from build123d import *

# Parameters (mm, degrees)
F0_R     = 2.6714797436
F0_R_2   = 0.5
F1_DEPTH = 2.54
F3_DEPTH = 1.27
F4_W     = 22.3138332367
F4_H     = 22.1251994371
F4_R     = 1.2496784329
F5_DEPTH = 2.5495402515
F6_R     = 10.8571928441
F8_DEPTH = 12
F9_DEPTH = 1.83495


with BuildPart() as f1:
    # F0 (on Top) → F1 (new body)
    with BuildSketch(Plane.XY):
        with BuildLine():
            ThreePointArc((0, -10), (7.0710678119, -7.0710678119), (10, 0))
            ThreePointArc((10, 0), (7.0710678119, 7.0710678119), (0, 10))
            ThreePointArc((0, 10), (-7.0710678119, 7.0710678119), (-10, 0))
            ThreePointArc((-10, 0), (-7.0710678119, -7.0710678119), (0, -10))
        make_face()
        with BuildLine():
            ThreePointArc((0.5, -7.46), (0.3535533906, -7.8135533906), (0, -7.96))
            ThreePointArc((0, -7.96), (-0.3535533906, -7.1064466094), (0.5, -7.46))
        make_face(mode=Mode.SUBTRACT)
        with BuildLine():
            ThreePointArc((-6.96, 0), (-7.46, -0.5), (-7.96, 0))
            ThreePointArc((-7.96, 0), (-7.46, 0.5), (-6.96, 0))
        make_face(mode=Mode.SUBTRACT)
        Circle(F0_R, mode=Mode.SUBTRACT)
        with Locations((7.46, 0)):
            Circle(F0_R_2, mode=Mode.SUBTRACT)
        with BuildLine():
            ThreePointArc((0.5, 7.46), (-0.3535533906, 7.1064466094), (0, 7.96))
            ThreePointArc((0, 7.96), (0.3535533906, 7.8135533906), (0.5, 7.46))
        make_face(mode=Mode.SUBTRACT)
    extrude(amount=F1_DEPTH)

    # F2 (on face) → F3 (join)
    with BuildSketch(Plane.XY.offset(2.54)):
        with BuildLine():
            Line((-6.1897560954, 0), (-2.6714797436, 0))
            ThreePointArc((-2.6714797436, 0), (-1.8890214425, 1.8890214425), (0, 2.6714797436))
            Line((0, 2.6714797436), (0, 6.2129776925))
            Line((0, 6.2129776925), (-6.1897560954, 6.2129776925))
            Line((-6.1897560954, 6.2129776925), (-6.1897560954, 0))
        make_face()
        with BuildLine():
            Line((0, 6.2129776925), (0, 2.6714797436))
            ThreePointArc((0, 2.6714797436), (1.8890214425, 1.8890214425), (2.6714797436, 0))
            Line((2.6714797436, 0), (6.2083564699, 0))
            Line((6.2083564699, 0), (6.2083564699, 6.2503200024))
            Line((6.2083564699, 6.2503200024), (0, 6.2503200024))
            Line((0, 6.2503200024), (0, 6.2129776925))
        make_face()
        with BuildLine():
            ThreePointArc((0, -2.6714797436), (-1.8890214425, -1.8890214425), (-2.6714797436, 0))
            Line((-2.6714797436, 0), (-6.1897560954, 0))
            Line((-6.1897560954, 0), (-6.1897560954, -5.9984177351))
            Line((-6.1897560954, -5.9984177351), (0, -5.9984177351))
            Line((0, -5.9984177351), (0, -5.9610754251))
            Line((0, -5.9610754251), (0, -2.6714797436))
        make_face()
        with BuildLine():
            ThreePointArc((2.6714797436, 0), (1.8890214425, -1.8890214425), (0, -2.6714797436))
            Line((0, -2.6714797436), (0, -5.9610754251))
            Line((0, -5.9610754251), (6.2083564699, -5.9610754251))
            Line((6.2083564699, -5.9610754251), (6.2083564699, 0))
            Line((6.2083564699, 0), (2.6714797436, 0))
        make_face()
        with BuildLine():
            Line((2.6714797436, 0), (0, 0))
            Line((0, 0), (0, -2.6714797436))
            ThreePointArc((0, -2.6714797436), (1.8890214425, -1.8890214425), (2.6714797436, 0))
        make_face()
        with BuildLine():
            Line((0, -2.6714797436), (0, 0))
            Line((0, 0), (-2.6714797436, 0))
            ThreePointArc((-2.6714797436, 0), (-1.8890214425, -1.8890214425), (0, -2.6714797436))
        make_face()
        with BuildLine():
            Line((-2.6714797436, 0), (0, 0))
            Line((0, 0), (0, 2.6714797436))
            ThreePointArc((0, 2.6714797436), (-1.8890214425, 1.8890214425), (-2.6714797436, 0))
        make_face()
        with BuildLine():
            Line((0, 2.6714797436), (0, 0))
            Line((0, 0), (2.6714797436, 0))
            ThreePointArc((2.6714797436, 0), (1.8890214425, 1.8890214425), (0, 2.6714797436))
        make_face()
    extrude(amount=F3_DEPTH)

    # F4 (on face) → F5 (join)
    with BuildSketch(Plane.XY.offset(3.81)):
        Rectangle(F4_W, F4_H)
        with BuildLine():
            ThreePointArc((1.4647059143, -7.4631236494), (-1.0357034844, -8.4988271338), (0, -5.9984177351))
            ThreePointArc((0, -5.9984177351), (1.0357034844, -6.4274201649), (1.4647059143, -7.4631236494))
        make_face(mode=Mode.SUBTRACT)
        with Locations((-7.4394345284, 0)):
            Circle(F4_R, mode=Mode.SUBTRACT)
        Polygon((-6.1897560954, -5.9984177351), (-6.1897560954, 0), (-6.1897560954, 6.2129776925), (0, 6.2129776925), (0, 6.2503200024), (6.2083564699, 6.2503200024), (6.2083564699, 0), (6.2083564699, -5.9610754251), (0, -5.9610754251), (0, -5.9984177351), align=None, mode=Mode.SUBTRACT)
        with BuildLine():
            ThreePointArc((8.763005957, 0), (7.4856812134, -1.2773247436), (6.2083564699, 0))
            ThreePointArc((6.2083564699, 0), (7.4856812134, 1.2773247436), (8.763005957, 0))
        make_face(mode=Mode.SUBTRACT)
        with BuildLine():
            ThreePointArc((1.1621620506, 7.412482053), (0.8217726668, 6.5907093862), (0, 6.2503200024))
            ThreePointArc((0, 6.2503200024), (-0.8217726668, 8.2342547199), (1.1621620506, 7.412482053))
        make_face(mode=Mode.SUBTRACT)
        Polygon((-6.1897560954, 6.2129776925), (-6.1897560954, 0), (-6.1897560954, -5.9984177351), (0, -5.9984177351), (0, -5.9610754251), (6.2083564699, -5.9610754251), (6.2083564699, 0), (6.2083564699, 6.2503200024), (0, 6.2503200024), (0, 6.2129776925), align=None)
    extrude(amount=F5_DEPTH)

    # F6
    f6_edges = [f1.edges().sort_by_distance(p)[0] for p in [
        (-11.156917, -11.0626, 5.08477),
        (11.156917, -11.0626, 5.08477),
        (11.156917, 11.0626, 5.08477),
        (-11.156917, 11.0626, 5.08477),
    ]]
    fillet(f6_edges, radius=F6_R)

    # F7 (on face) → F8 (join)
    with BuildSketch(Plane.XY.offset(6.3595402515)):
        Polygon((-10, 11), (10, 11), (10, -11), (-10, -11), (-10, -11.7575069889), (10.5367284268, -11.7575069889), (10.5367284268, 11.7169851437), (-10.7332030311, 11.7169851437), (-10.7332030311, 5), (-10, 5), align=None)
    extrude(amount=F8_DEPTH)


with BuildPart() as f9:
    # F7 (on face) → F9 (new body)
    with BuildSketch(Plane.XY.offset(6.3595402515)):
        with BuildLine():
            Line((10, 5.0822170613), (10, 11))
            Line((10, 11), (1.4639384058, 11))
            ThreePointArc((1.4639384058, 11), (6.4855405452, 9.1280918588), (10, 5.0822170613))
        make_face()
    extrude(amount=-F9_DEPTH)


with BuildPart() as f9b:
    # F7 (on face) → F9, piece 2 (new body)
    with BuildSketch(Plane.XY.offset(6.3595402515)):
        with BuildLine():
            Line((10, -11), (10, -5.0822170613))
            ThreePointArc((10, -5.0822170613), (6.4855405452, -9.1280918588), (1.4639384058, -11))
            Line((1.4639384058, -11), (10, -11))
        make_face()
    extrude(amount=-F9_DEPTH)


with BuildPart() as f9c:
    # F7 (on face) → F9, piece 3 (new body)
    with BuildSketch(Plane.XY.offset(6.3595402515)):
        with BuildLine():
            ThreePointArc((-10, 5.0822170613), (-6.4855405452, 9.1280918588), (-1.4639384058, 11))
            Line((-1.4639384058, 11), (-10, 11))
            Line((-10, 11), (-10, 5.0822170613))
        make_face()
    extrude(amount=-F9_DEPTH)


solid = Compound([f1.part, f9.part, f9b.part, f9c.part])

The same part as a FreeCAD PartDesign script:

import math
import FreeCAD as App
import Part
import Sketcher
from FreeCAD import Vector
Q = App.Units.Quantity


def edges_at(feature, points):
    """Names of the edges that pass closest to the given points."""
    edges = feature.Shape.Edges
    near = lambda p: min(range(len(edges)), key=lambda i: edges[i].distToShape(Part.Vertex(*p))[0])
    return sorted({f"Edge{near(p) + 1}" for p in points})


def add_polygon(sketch, points):
    """Adds a closed chain of lines whose ends are joined by coincident constraints."""
    first, n = sketch.GeometryCount, len(points)
    for a, b in zip(points, points[1:] + points[:1]):
        sketch.addGeometry(Part.LineSegment(App.Vector(*a, 0), App.Vector(*b, 0)), False)
    for i in range(n):
        sketch.addConstraint(Sketcher.Constraint("Coincident", first + i, 2, first + (i + 1) % n, 1))

doc = App.newDocument("Part")
body = doc.addObject("PartDesign::Body", "Body")

# Sketch on XY plane
sketch1 = body.newObject("Sketcher::SketchObject", "Sketch")
sketch1.AttachmentSupport = (doc.getObject("XY_Plane"), [""])
sketch1.MapMode = "FlatFace"
sketch1.addGeometry(Part.ArcOfCircle(Part.Circle(Vector(0, 0, 0), Vector(0, 0, 1), 10), math.radians(-90), math.radians(0)), False)
sketch1.addGeometry(Part.ArcOfCircle(Part.Circle(Vector(0, 0, 0), Vector(0, 0, 1), 10), math.radians(0), math.radians(90)), False)
sketch1.addGeometry(Part.ArcOfCircle(Part.Circle(Vector(0, 0, 0), Vector(0, 0, 1), 10), math.radians(90), math.radians(180)), False)
sketch1.addGeometry(Part.ArcOfCircle(Part.Circle(Vector(0, 0, 0), Vector(0, 0, 1), 10), math.radians(180), math.radians(270)), False)
sketch1.addGeometry(Part.ArcOfCircle(Part.Circle(Vector(0, -7.5, 0), Vector(0, 0, 1), 0.5), math.radians(0), math.radians(270)), False)
sketch1.addGeometry(Part.ArcOfCircle(Part.Circle(Vector(0, -7.5, 0), Vector(0, 0, 1), 0.5), math.radians(-90), math.radians(0)), False)
sketch1.addGeometry(Part.Circle(Vector(-7.5, 0, 0), Vector(0, 0, 1), 0.5), False)
sketch1.addGeometry(Part.Circle(Vector(0, 0, 0), Vector(0, 0, 1), 2.7), False)
sketch1.addGeometry(Part.Circle(Vector(7.5, 0, 0), Vector(0, 0, 1), 0.5), False)
sketch1.addGeometry(Part.ArcOfCircle(Part.Circle(Vector(0, 7.5, 0), Vector(0, 0, 1), 0.5), math.radians(0), math.radians(90)), False)
sketch1.addGeometry(Part.ArcOfCircle(Part.Circle(Vector(0, 7.5, 0), Vector(0, 0, 1), 0.5), math.radians(90), math.radians(360)), False)
sketch1.addConstraint(Sketcher.Constraint("Tangent", 0, 2, 1, 1))
sketch1.addConstraint(Sketcher.Constraint("Tangent", 1, 2, 2, 1))
sketch1.addConstraint(Sketcher.Constraint("Tangent", 2, 2, 3, 1))
sketch1.addConstraint(Sketcher.Constraint("Tangent", 3, 2, 0, 1))
sketch1.addConstraint(Sketcher.Constraint("Tangent", 4, 1, 5, 2))
sketch1.addConstraint(Sketcher.Constraint("Coincident", 5, 1, 4, 2))
sketch1.addConstraint(Sketcher.Constraint("Tangent", 9, 1, 10, 2))
sketch1.addConstraint(Sketcher.Constraint("Coincident", 10, 1, 9, 2))
sketch1.addConstraint(Sketcher.Constraint("Coincident", 0, 3, -1, 1))
sketch1.addConstraint(Sketcher.Constraint("Coincident", 7, 3, -1, 1))
sketch1.addConstraint(Sketcher.Constraint("Equal", 0, 1))
sketch1.addConstraint(Sketcher.Constraint("Equal", 5, 6))
sketch1.addConstraint(Sketcher.Constraint("Equal", 6, 8))
sketch1.addConstraint(Sketcher.Constraint("Equal", 8, 9))
sketch1.addConstraint(Sketcher.Constraint("Symmetric", 6, 3, 8, 3, -1, 1))
sketch1.addConstraint(Sketcher.Constraint("Symmetric", 4, 3, 9, 3, -1, 1))
sketch1.addConstraint(Sketcher.Constraint("Symmetric", 4, 1, 9, 1, -1))
sketch1.addConstraint(Sketcher.Constraint("PointOnObject", 6, 3, -1))
sketch1.addConstraint(Sketcher.Constraint("PointOnObject", 0, 2, -1))
sketch1.addConstraint(Sketcher.Constraint("PointOnObject", 1, 2, -2))
sketch1.addConstraint(Sketcher.Constraint("PointOnObject", 2, 2, -1))
sketch1.addConstraint(Sketcher.Constraint("PointOnObject", 3, 2, -2))
sketch1.addConstraint(Sketcher.Constraint("PointOnObject", 5, 1, -2))
sketch1.addConstraint(Sketcher.Constraint("PointOnObject", 10, 1, -2))
sketch1.addConstraint(Sketcher.Constraint("Horizontal", 5, 3, 4, 1))
sketch1.addConstraint(Sketcher.Constraint("Diameter", 6, Q("1 mm")))
sketch1.addConstraint(Sketcher.Constraint("Radius", 0, Q("10 mm")))
sketch1.addConstraint(Sketcher.Constraint("Diameter", 7, Q("5.342959 mm")))
sketch1.addConstraint(Sketcher.Constraint("DistanceY", 4, 3, -1, 1, Q("7.46 mm")))
sketch1.addConstraint(Sketcher.Constraint("DistanceX", 6, 3, -1, 1, Q("7.46 mm")))
pad1 = body.newObject("PartDesign::Pad", "Pad")
pad1.Profile = sketch1
pad1.Length = 2.54

# Sketch on XY plane
sketch2 = body.newObject("Sketcher::SketchObject", "Sketch001")
sketch2.AttachmentSupport = (doc.getObject("XY_Plane"), [""])
sketch2.MapMode = "FlatFace"
sketch2.AttachmentOffset = App.Placement(Vector(0, 0, 2.54), App.Rotation())
add_polygon(sketch2, [(6.208, 6.25), (0, 6.25), (0, 6.213), (-6.19, 6.213), (-6.19, -5.998), (0, -5.998), (0, -5.961), (6.208, -5.961)])  # lines 0-7
sketch2.addConstraint(Sketcher.Constraint("Horizontal", 0))
sketch2.addConstraint(Sketcher.Constraint("Vertical", 1))
sketch2.addConstraint(Sketcher.Constraint("Horizontal", 2))
sketch2.addConstraint(Sketcher.Constraint("Vertical", 3))
sketch2.addConstraint(Sketcher.Constraint("Horizontal", 4))
sketch2.addConstraint(Sketcher.Constraint("Vertical", 5))
sketch2.addConstraint(Sketcher.Constraint("Horizontal", 6))
sketch2.addConstraint(Sketcher.Constraint("Vertical", 7))
sketch2.addConstraint(Sketcher.Constraint("PointOnObject", 0, 2, -2))
sketch2.addConstraint(Sketcher.Constraint("PointOnObject", 4, 2, -2))
sketch2.addConstraint(Sketcher.Constraint("Equal", 1, 5))
sketch2.addConstraint(Sketcher.Constraint("DistanceX", 0, 2, 0, 1, Q("6.208356 mm")))
sketch2.addConstraint(Sketcher.Constraint("DistanceX", 2, 2, 2, 1, Q("6.189756 mm")))
sketch2.addConstraint(Sketcher.Constraint("DistanceY", 1, 2, 1, 1, Q("0.037342 mm")))
sketch2.addConstraint(Sketcher.Constraint("DistanceY", 3, 2, 3, 1, Q("12.211395 mm")))
sketch2.addConstraint(Sketcher.Constraint("DistanceY", -1, 1, 0, 2, Q("6.25032 mm")))
pad2 = body.newObject("PartDesign::Pad", "Pad001")
pad2.Profile = sketch2
pad2.Length = 1.27

# Sketch on XY plane
sketch3 = body.newObject("Sketcher::SketchObject", "Sketch002")
sketch3.AttachmentSupport = (doc.getObject("XY_Plane"), [""])
sketch3.MapMode = "FlatFace"
sketch3.AttachmentOffset = App.Placement(Vector(0, 0, 3.81), App.Rotation())
add_polygon(sketch3, [(-11.2, 11.1), (-11.2, -11.1), (11.2, -11.1), (11.2, 11.1)])  # lines 0-3
sketch3.addGeometry(Part.ArcOfCircle(Part.Circle(Vector(0, -7.5, 0), Vector(0, 0, 1), 1.5), math.radians(0), math.radians(90)), False)  # 4
sketch3.addGeometry(Part.ArcOfCircle(Part.Circle(Vector(0, -7.5, 0), Vector(0, 0, 1), 1.5), math.radians(90), math.radians(360)), False)  # 5
sketch3.addGeometry(Part.Circle(Vector(-7.4, 0, 0), Vector(0, 0, 1), 1.2), False)  # 6
sketch3.addGeometry(Part.ArcOfCircle(Part.Circle(Vector(0, 7.4, 0), Vector(0, 0, 1), 1.2), math.radians(-90), math.radians(0)), False)  # 7
sketch3.addGeometry(Part.ArcOfCircle(Part.Circle(Vector(0, 7.4, 0), Vector(0, 0, 1), 1.2), math.radians(0), math.radians(270)), False)  # 8
sketch3.addGeometry(Part.ArcOfCircle(Part.Circle(Vector(7.5, 0, 0), Vector(0, 0, 1), 1.3), math.radians(180), math.radians(360)), False)  # 9
sketch3.addGeometry(Part.ArcOfCircle(Part.Circle(Vector(7.5, 0, 0), Vector(0, 0, 1), 1.3), math.radians(0), math.radians(180)), False)  # 10
sketch3.addConstraint(Sketcher.Constraint("Tangent", 4, 1, 5, 2))
sketch3.addConstraint(Sketcher.Constraint("Coincident", 5, 1, 4, 2))
sketch3.addConstraint(Sketcher.Constraint("Tangent", 7, 1, 8, 2))
sketch3.addConstraint(Sketcher.Constraint("Coincident", 8, 1, 7, 2))
sketch3.addConstraint(Sketcher.Constraint("Tangent", 9, 1, 10, 2))
sketch3.addConstraint(Sketcher.Constraint("Coincident", 10, 1, 9, 2))
sketch3.addConstraint(Sketcher.Constraint("Vertical", 0))
sketch3.addConstraint(Sketcher.Constraint("Horizontal", 1))
sketch3.addConstraint(Sketcher.Constraint("Vertical", 2))
sketch3.addConstraint(Sketcher.Constraint("Horizontal", 3))
sketch3.addConstraint(Sketcher.Constraint("Symmetric", 0, 2, 2, 2, -1, 1))
sketch3.addConstraint(Sketcher.Constraint("PointOnObject", 4, 3, -2))
sketch3.addConstraint(Sketcher.Constraint("PointOnObject", 6, 3, -1))
sketch3.addConstraint(Sketcher.Constraint("PointOnObject", 7, 3, -2))
sketch3.addConstraint(Sketcher.Constraint("PointOnObject", 9, 3, -1))
sketch3.addConstraint(Sketcher.Constraint("PointOnObject", 5, 1, -2))
sketch3.addConstraint(Sketcher.Constraint("PointOnObject", 7, 1, -2))
sketch3.addConstraint(Sketcher.Constraint("PointOnObject", 9, 1, -1))
sketch3.addConstraint(Sketcher.Constraint("PointOnObject", 10, 1, -1))
sketch3.addConstraint(Sketcher.Constraint("Horizontal", 5, 3, 4, 1))
sketch3.addConstraint(Sketcher.Constraint("Horizontal", 7, 3, 8, 1))
sketch3.addConstraint(Sketcher.Constraint("Diameter", 6, Q("2.499357 mm")))
sketch3.addConstraint(Sketcher.Constraint("DistanceY", 0, 2, 0, 1, Q("22.125199 mm")))
sketch3.addConstraint(Sketcher.Constraint("Radius", 4, Q("1.464706 mm")))
sketch3.addConstraint(Sketcher.Constraint("Radius", 7, Q("1.162162 mm")))
sketch3.addConstraint(Sketcher.Constraint("Radius", 9, Q("1.277325 mm")))
sketch3.addConstraint(Sketcher.Constraint("DistanceX", 4, 1, 10, 1, Q("7.2983 mm")))
sketch3.addConstraint(Sketcher.Constraint("DistanceX", 1, 1, 1, 2, Q("22.313833 mm")))
sketch3.addConstraint(Sketcher.Constraint("DistanceY", -1, 1, 7, 1, Q("6.25032 mm")))
sketch3.addConstraint(Sketcher.Constraint("DistanceY", 4, 3, -1, 1, Q("7.463124 mm")))
sketch3.addConstraint(Sketcher.Constraint("DistanceX", 6, 3, -1, 1, Q("7.439435 mm")))
pad3 = body.newObject("PartDesign::Pad", "Pad002")
pad3.Profile = sketch3
pad3.Length = 2.54954
doc.recompute()

fillet = body.newObject("PartDesign::Fillet", "Fillet")
fillet.Base = (pad3, edges_at(pad3, [
    (-11.157, -11.063, 5.085),
    (11.157, -11.063, 5.085),
    (11.157, 11.063, 5.085),
    (-11.157, 11.063, 5.085),
]))
fillet.Radius = 10.857193

# Sketch on XY plane
sketch4 = body.newObject("Sketcher::SketchObject", "Sketch003")
sketch4.AttachmentSupport = (doc.getObject("XY_Plane"), [""])
sketch4.MapMode = "FlatFace"
sketch4.AttachmentOffset = App.Placement(Vector(0, 0, 6.35954), App.Rotation())
add_polygon(sketch4, [(-10, 11), (10, 11), (10, -11), (-10, -11), (-10, -11.8), (10.5, -11.8), (10.5, 11.7), (-10.7, 11.7), (-10.7, 5), (-10, 5)])  # lines 0-9
sketch4.addConstraint(Sketcher.Constraint("Horizontal", 0))
sketch4.addConstraint(Sketcher.Constraint("Vertical", 1))
sketch4.addConstraint(Sketcher.Constraint("Horizontal", 2))
sketch4.addConstraint(Sketcher.Constraint("Vertical", 3))
sketch4.addConstraint(Sketcher.Constraint("Horizontal", 4))
sketch4.addConstraint(Sketcher.Constraint("Vertical", 5))
sketch4.addConstraint(Sketcher.Constraint("Horizontal", 6))
sketch4.addConstraint(Sketcher.Constraint("Vertical", 7))
sketch4.addConstraint(Sketcher.Constraint("Horizontal", 8))
sketch4.addConstraint(Sketcher.Constraint("Vertical", 9))
sketch4.addConstraint(Sketcher.Constraint("Symmetric", 0, 2, 2, 2, -1, 1))
sketch4.addConstraint(Sketcher.Constraint("Vertical", 3, 2, 8, 2))
sketch4.addConstraint(Sketcher.Constraint("DistanceX", 0, 1, 0, 2, Q("20 mm")))
sketch4.addConstraint(Sketcher.Constraint("DistanceY", 1, 2, 1, 1, Q("22 mm")))
sketch4.addConstraint(Sketcher.Constraint("DistanceY", 9, 1, 9, 2, Q("6 mm")))
sketch4.addConstraint(Sketcher.Constraint("DistanceX", 4, 1, 4, 2, Q("20.536728 mm")))
sketch4.addConstraint(Sketcher.Constraint("DistanceX", 6, 2, 6, 1, Q("21.269931 mm")))
sketch4.addConstraint(Sketcher.Constraint("DistanceY", 3, 2, 3, 1, Q("0.757507 mm")))
sketch4.addConstraint(Sketcher.Constraint("DistanceY", 5, 1, 5, 2, Q("23.474492 mm")))
pad4 = body.newObject("PartDesign::Pad", "Pad003")
pad4.Profile = sketch4
pad4.Length = 12
body2 = doc.addObject("PartDesign::Body", "Body001")

# Sketch on XY plane
sketch5 = body2.newObject("Sketcher::SketchObject", "Sketch004")
sketch5.AttachmentSupport = (doc.getObject("XY_Plane001"), [""])
sketch5.MapMode = "FlatFace"
sketch5.AttachmentOffset = App.Placement(Vector(0, 0, 6.35954), App.Rotation())
sketch5.addGeometry(Part.LineSegment(Vector(10, 5, 0), Vector(10, 11, 0)), False)
sketch5.addGeometry(Part.LineSegment(Vector(10, 11, 0), Vector(1, 11, 0)), False)
sketch5.addGeometry(Part.ArcOfCircle(Part.Circle(Vector(0, 0, 0), Vector(0, 0, 1), 11), math.radians(27), math.radians(84)), False)
sketch5.addConstraint(Sketcher.Constraint("Coincident", 0, 2, 1, 1))
sketch5.addConstraint(Sketcher.Constraint("Coincident", 1, 2, 2, 2))
sketch5.addConstraint(Sketcher.Constraint("Coincident", 2, 1, 0, 1))
sketch5.addConstraint(Sketcher.Constraint("Vertical", 0))
sketch5.addConstraint(Sketcher.Constraint("Horizontal", 1))
sketch5.addConstraint(Sketcher.Constraint("DistanceX", -1, 1, 0, 2, Q("10 mm")))
sketch5.addConstraint(Sketcher.Constraint("DistanceY", -1, 1, 0, 2, Q("11 mm")))
sketch5.addConstraint(Sketcher.Constraint("Radius", 2, Q("10.857193 mm")))
sketch5.addConstraint(Sketcher.Constraint("DistanceX", 1, 2, 1, 1, Q("8.536062 mm")))
sketch5.addConstraint(Sketcher.Constraint("DistanceY", 0, 1, 0, 2, Q("5.917783 mm")))
pad5 = body2.newObject("PartDesign::Pad", "Pad004")
pad5.Profile = sketch5
pad5.Length = 1.83495
pad5.Reversed = True
body3 = doc.addObject("PartDesign::Body", "Body002")

# Sketch on XY plane
sketch6 = body3.newObject("Sketcher::SketchObject", "Sketch005")
sketch6.AttachmentSupport = (doc.getObject("XY_Plane002"), [""])
sketch6.MapMode = "FlatFace"
sketch6.AttachmentOffset = App.Placement(Vector(0, 0, 6.35954), App.Rotation())
sketch6.addGeometry(Part.LineSegment(Vector(10, -11, 0), Vector(10, -5, 0)), False)
sketch6.addGeometry(Part.ArcOfCircle(Part.Circle(Vector(0, 0, 0), Vector(0, 0, 1), 11), math.radians(-84), math.radians(-27)), False)
sketch6.addGeometry(Part.LineSegment(Vector(1, -11, 0), Vector(10, -11, 0)), False)
sketch6.addConstraint(Sketcher.Constraint("Coincident", 0, 2, 1, 2))
sketch6.addConstraint(Sketcher.Constraint("Coincident", 1, 1, 2, 1))
sketch6.addConstraint(Sketcher.Constraint("Coincident", 2, 2, 0, 1))
sketch6.addConstraint(Sketcher.Constraint("Vertical", 0))
sketch6.addConstraint(Sketcher.Constraint("Horizontal", 2))
sketch6.addConstraint(Sketcher.Constraint("DistanceX", -1, 1, 0, 2, Q("10 mm")))
sketch6.addConstraint(Sketcher.Constraint("DistanceY", 1, 1, -1, 1, Q("11 mm")))
sketch6.addConstraint(Sketcher.Constraint("Radius", 1, Q("10.857193 mm")))
sketch6.addConstraint(Sketcher.Constraint("DistanceX", 2, 1, 2, 2, Q("8.536062 mm")))
sketch6.addConstraint(Sketcher.Constraint("DistanceY", 0, 1, 0, 2, Q("5.917783 mm")))
pad6 = body3.newObject("PartDesign::Pad", "Pad005")
pad6.Profile = sketch6
pad6.Length = 1.83495
pad6.Reversed = True
body4 = doc.addObject("PartDesign::Body", "Body003")

# Sketch on XY plane
sketch7 = body4.newObject("Sketcher::SketchObject", "Sketch006")
sketch7.AttachmentSupport = (doc.getObject("XY_Plane003"), [""])
sketch7.MapMode = "FlatFace"
sketch7.AttachmentOffset = App.Placement(Vector(0, 0, 6.35954), App.Rotation())
sketch7.addGeometry(Part.ArcOfCircle(Part.Circle(Vector(0, 0, 0), Vector(0, 0, 1), 11), math.radians(96), math.radians(153)), False)
sketch7.addGeometry(Part.LineSegment(Vector(-1, 11, 0), Vector(-10, 11, 0)), False)
sketch7.addGeometry(Part.LineSegment(Vector(-10, 11, 0), Vector(-10, 5, 0)), False)
sketch7.addConstraint(Sketcher.Constraint("Coincident", 0, 1, 1, 1))
sketch7.addConstraint(Sketcher.Constraint("Coincident", 1, 2, 2, 1))
sketch7.addConstraint(Sketcher.Constraint("Coincident", 2, 2, 0, 2))
sketch7.addConstraint(Sketcher.Constraint("Horizontal", 1))
sketch7.addConstraint(Sketcher.Constraint("Vertical", 2))
sketch7.addConstraint(Sketcher.Constraint("DistanceY", -1, 1, 0, 1, Q("11 mm")))
sketch7.addConstraint(Sketcher.Constraint("DistanceX", 1, 2, -1, 1, Q("10 mm")))
sketch7.addConstraint(Sketcher.Constraint("Radius", 0, Q("10.857193 mm")))
sketch7.addConstraint(Sketcher.Constraint("DistanceX", 1, 2, 1, 1, Q("8.536062 mm")))
sketch7.addConstraint(Sketcher.Constraint("DistanceY", 2, 2, 2, 1, Q("5.917783 mm")))
pad7 = body4.newObject("PartDesign::Pad", "Pad006")
pad7.Profile = sketch7
pad7.Length = 1.83495
pad7.Reversed = True

doc.recompute()
